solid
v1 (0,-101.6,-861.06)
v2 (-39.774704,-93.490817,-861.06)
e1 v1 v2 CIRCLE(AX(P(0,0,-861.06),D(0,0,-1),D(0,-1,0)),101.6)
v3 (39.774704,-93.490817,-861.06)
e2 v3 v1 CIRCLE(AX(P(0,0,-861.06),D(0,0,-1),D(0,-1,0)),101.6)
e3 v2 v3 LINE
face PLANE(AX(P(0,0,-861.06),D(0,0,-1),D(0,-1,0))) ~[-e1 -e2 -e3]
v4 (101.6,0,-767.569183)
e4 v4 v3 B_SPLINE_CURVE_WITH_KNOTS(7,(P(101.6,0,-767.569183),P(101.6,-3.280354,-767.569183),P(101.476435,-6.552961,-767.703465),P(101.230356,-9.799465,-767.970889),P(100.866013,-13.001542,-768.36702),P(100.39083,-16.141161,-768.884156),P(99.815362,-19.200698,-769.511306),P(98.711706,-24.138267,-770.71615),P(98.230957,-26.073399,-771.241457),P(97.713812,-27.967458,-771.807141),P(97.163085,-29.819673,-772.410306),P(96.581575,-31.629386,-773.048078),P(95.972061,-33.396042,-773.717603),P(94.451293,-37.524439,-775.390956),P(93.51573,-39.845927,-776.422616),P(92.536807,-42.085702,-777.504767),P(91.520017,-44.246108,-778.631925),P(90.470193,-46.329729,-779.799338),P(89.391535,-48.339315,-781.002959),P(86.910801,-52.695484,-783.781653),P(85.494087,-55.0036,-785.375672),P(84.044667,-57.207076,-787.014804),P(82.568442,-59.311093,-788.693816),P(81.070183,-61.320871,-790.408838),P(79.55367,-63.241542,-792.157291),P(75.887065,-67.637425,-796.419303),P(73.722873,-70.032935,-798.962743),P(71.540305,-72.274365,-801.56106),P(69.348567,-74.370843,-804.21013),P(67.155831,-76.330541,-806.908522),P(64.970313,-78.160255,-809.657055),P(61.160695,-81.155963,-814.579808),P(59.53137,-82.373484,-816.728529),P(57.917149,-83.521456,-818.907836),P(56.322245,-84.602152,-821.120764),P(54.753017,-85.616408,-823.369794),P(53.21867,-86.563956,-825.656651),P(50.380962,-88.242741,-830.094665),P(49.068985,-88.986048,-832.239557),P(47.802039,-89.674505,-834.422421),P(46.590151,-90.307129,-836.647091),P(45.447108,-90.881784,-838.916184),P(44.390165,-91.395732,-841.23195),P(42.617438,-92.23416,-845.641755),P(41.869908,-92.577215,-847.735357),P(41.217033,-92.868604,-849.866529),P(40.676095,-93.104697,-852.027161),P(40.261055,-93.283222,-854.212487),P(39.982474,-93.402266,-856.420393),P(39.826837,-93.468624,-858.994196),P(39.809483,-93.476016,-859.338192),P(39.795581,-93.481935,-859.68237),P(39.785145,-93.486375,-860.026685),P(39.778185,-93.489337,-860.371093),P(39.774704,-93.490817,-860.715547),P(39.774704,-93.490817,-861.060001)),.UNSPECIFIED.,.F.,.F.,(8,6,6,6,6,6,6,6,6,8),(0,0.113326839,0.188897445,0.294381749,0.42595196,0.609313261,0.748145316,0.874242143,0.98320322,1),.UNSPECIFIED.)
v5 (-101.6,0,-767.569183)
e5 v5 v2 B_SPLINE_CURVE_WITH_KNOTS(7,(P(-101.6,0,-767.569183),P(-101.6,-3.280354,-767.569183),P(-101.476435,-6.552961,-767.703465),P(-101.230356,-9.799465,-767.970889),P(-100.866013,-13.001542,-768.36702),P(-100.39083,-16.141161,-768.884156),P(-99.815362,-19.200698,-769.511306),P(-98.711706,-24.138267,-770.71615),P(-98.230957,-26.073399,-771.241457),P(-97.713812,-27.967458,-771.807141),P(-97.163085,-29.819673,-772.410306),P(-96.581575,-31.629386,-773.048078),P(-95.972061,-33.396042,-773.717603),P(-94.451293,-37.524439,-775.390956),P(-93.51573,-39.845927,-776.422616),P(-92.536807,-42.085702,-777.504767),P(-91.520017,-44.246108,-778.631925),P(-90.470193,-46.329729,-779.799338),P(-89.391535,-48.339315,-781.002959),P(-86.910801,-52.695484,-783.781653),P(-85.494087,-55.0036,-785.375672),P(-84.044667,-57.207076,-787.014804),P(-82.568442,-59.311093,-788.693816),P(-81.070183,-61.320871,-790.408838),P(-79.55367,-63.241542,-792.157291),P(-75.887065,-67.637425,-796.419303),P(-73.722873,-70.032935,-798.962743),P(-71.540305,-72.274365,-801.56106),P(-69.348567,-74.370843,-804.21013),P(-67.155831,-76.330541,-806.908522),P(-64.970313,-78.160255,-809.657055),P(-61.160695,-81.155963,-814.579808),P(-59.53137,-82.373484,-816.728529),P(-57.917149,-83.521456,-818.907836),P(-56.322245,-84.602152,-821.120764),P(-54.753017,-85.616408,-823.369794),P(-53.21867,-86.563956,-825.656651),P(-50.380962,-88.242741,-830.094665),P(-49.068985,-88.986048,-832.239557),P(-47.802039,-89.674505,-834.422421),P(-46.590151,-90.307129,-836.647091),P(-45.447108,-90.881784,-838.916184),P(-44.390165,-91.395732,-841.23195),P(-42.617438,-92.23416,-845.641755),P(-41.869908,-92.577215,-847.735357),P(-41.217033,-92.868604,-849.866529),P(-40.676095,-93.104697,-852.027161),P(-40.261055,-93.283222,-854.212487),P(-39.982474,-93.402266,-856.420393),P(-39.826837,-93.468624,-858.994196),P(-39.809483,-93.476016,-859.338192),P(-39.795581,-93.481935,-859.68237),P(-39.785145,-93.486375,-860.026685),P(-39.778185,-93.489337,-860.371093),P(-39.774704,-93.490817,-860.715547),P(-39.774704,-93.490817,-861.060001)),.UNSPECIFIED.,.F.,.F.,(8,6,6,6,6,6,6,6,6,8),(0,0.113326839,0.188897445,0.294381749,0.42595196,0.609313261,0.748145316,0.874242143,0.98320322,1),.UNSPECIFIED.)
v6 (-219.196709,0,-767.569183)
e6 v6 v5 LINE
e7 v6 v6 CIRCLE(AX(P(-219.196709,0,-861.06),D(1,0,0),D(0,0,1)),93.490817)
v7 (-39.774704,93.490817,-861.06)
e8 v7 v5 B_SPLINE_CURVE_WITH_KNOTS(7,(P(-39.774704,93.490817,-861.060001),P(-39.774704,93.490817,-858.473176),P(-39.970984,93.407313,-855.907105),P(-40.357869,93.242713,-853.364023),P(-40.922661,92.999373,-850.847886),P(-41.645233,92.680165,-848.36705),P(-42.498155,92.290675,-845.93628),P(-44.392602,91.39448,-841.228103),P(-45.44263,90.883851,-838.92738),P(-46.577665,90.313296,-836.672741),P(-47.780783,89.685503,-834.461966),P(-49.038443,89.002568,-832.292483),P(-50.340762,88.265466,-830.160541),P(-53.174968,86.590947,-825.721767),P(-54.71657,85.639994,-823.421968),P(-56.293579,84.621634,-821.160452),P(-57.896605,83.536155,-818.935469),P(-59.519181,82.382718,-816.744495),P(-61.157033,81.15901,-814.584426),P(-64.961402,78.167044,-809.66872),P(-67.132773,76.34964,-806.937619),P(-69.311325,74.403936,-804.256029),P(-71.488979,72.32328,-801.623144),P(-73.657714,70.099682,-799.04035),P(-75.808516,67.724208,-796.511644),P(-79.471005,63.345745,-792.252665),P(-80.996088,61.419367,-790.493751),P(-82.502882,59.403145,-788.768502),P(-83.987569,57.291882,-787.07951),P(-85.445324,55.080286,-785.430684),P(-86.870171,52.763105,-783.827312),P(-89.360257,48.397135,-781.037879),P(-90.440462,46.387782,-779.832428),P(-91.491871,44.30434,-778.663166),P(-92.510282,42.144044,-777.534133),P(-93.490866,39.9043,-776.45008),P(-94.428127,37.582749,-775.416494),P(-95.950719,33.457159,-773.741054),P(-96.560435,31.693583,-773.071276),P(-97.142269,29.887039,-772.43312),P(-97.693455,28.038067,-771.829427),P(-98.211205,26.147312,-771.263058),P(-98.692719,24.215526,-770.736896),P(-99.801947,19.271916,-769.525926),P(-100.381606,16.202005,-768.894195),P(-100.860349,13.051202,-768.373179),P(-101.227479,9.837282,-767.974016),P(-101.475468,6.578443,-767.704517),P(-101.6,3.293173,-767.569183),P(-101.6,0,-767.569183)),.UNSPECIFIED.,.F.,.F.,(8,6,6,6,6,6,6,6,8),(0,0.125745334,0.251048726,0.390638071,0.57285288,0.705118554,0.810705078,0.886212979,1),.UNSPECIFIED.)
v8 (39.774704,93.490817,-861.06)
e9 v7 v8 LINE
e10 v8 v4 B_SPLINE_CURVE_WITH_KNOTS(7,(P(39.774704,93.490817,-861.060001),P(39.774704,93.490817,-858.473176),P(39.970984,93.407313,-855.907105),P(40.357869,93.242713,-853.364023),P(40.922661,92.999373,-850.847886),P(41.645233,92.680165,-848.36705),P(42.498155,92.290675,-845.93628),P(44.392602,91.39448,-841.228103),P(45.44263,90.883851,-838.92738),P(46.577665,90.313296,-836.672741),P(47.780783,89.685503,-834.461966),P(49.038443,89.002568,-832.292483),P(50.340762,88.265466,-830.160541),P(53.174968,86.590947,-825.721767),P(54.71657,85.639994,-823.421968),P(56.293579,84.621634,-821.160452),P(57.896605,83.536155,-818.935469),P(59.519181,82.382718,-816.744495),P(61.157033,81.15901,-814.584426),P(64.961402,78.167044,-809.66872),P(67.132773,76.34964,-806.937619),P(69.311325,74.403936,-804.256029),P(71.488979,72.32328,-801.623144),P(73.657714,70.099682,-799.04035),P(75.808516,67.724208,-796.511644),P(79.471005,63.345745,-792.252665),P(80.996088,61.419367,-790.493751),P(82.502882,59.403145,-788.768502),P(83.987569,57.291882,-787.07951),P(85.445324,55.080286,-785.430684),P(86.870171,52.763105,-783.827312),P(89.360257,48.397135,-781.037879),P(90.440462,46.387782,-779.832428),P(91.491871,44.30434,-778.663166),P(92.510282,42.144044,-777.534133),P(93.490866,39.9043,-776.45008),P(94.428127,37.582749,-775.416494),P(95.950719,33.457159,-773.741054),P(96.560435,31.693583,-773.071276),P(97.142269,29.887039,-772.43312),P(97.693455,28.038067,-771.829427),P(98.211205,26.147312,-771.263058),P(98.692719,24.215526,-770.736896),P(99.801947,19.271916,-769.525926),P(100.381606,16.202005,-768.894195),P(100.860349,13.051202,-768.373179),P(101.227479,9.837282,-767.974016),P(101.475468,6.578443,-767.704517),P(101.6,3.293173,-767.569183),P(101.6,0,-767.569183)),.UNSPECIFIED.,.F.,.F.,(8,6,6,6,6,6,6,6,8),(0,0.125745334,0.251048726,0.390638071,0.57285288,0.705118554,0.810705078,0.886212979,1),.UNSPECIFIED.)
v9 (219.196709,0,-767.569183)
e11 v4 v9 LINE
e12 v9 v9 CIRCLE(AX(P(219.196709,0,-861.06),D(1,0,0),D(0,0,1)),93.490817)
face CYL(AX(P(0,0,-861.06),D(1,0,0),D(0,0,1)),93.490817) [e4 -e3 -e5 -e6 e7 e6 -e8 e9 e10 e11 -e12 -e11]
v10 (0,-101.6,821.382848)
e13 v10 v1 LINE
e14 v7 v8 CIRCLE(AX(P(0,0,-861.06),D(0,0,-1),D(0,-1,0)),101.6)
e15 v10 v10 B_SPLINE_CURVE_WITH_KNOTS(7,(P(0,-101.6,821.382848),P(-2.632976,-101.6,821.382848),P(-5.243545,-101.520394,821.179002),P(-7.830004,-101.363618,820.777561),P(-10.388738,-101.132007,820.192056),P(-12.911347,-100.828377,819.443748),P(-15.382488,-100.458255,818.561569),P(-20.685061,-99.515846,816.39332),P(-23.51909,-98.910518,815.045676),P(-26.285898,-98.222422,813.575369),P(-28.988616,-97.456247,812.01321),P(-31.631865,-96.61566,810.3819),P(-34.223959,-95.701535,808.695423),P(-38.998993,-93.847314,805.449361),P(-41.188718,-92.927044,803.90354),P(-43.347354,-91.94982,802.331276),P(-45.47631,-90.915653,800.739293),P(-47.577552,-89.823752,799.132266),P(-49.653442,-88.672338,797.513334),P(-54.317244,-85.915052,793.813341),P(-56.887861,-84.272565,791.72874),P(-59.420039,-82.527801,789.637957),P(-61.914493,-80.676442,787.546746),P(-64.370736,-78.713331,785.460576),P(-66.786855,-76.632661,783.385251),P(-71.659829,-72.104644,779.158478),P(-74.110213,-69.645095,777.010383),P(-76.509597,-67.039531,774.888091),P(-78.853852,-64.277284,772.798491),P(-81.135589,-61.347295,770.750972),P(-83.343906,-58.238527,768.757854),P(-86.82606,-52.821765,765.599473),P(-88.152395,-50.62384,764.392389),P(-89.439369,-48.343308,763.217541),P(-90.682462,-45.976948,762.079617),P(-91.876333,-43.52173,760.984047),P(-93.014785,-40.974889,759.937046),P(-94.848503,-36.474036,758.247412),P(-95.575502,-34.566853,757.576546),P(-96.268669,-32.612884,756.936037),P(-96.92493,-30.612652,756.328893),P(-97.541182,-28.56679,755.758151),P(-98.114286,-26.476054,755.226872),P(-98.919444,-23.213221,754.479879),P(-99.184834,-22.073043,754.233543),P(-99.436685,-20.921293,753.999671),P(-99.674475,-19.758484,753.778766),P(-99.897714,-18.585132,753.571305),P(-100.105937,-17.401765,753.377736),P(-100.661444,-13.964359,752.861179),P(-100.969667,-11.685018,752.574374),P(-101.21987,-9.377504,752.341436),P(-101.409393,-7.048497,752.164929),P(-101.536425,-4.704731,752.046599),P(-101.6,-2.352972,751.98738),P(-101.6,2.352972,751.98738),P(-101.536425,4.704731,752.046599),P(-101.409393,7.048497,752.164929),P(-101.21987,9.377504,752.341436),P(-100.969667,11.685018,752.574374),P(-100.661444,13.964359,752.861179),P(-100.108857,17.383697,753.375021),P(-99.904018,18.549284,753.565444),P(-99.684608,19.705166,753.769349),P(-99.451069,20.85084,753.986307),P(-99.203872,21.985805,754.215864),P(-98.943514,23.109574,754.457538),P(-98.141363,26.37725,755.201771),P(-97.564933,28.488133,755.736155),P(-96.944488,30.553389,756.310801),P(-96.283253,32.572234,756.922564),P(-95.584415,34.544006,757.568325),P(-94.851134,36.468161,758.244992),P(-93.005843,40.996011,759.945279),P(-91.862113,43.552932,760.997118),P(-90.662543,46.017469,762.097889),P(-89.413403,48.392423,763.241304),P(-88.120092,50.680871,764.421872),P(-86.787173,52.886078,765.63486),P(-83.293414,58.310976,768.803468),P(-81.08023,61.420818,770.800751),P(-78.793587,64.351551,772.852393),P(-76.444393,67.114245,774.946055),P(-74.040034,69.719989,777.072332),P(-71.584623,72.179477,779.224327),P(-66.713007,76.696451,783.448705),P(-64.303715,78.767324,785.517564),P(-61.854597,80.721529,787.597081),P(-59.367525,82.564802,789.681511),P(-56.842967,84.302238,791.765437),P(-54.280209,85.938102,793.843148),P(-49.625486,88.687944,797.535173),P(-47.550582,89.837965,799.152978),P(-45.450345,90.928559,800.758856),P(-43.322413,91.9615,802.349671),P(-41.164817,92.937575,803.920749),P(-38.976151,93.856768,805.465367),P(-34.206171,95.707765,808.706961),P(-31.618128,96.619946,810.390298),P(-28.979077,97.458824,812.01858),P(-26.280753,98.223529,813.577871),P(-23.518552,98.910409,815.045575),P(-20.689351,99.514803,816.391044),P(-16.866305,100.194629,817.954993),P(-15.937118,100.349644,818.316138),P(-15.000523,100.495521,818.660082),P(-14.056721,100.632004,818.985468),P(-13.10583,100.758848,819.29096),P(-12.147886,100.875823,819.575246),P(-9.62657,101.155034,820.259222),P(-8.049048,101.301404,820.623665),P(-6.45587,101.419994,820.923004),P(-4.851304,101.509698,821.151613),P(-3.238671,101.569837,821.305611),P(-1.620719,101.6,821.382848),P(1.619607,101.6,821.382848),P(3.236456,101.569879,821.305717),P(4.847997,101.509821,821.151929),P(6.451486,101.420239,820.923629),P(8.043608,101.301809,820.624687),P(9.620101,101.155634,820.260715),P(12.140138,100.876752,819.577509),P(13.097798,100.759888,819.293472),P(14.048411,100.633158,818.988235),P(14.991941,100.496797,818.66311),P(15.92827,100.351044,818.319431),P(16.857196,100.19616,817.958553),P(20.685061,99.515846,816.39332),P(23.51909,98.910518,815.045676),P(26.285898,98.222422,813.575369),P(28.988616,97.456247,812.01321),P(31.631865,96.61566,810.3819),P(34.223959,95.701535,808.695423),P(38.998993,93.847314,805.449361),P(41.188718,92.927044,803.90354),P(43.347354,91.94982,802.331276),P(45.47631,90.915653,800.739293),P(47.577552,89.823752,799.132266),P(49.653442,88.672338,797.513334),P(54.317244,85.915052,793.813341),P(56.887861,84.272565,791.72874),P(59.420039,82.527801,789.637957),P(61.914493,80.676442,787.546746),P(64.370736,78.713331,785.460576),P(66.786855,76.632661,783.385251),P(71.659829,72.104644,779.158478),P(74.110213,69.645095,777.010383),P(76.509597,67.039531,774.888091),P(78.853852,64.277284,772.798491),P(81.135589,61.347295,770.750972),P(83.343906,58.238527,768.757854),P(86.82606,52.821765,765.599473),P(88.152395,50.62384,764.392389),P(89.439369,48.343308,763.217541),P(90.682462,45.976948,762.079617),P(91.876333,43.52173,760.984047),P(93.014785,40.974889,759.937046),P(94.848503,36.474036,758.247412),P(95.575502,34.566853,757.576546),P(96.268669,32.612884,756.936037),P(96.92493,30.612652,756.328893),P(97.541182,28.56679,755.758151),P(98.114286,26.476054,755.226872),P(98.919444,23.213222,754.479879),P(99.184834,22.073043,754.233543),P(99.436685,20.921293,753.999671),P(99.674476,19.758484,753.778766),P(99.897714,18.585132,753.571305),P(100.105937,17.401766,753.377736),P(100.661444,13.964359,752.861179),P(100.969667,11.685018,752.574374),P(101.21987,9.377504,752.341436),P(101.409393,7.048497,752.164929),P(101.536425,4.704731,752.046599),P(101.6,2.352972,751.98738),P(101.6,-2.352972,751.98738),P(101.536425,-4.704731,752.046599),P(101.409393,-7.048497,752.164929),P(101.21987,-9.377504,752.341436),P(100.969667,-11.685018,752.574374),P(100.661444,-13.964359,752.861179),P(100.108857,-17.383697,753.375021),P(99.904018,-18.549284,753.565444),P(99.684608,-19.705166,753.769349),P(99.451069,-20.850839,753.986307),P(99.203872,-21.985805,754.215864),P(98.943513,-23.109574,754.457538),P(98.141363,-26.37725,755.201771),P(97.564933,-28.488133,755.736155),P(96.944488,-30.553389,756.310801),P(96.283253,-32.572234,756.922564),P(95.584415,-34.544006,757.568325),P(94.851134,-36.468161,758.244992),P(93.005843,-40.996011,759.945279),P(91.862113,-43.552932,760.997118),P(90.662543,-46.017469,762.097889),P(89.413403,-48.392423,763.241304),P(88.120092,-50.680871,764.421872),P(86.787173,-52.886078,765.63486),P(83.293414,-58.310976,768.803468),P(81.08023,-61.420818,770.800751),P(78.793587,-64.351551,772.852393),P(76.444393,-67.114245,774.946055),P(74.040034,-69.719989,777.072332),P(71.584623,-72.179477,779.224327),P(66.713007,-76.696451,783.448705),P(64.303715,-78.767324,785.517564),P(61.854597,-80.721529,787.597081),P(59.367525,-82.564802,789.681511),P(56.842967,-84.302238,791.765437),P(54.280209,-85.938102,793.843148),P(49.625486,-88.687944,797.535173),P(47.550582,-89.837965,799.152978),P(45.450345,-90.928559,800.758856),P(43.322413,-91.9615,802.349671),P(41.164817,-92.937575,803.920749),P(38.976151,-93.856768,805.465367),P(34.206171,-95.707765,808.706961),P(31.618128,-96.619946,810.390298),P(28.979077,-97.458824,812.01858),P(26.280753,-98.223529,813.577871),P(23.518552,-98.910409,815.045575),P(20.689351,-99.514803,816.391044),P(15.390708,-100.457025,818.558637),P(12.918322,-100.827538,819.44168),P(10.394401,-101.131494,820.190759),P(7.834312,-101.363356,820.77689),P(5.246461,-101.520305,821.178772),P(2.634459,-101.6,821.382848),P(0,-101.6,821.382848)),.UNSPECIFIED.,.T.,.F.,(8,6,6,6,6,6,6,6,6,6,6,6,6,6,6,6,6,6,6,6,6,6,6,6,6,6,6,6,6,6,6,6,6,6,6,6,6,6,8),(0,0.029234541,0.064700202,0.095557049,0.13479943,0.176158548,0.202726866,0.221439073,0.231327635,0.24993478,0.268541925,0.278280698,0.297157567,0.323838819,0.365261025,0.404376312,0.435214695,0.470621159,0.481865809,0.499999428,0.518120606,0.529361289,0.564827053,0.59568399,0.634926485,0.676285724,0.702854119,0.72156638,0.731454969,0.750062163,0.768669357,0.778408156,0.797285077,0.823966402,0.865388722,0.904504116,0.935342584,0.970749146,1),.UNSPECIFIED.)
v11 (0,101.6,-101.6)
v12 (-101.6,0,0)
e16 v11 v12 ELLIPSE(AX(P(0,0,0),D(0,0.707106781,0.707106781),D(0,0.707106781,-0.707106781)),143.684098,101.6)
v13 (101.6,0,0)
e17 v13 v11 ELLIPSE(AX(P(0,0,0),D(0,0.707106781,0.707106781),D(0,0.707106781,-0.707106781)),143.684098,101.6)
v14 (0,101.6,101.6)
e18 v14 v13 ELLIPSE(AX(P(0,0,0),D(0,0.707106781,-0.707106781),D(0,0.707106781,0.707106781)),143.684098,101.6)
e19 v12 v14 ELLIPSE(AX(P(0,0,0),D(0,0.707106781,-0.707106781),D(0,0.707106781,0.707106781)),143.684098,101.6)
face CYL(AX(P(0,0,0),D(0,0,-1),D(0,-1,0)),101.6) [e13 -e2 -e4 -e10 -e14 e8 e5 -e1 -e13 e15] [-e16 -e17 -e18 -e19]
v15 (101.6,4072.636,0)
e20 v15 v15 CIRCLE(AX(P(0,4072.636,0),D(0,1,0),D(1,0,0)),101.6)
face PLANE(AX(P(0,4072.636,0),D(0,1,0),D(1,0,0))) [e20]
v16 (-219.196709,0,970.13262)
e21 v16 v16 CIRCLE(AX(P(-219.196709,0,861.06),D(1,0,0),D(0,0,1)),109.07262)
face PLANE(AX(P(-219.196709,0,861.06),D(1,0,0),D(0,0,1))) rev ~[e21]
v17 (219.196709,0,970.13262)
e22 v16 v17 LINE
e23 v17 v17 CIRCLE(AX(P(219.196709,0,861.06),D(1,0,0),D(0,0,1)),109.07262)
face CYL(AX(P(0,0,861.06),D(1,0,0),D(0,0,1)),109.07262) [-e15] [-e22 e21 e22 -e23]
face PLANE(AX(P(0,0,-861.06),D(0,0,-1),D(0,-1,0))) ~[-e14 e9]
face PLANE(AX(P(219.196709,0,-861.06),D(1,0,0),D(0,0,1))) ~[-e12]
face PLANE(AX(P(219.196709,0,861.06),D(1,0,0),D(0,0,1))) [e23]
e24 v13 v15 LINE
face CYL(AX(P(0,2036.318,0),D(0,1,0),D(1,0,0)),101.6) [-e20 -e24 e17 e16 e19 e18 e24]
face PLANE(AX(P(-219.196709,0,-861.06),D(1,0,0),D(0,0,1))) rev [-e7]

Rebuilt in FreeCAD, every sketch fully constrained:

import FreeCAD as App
import Part
import Sketcher
from FreeCAD import Vector
Q = App.Units.Quantity

doc = App.newDocument("Part")
body = doc.addObject("PartDesign::Body", "Body")

# Sketch on XY plane
sketch1 = body.newObject("Sketcher::SketchObject", "Sketch")
sketch1.AttachmentSupport = (doc.getObject("XY_Plane"), [""])
sketch1.MapMode = "FlatFace"
sketch1.addGeometry(Part.LineSegment(Vector(-101.6, 4072.636, 0), Vector(-101.6, 0, 0)), False)
sketch1.addGeometry(Part.LineSegment(Vector(-101.6, 0, 0), Vector(0, 0, 0)), False)
sketch1.addGeometry(Part.LineSegment(Vector(0, 0, 0), Vector(0, 4072.636, 0)), False)
sketch1.addGeometry(Part.LineSegment(Vector(0, 4072.636, 0), Vector(-101.6, 4072.636, 0)), False)
sketch1.addConstraint(Sketcher.Constraint("Coincident", 0, 2, 1, 1))
sketch1.addConstraint(Sketcher.Constraint("Coincident", 1, 2, 2, 1))
sketch1.addConstraint(Sketcher.Constraint("Coincident", 2, 2, 3, 1))
sketch1.addConstraint(Sketcher.Constraint("Coincident", 3, 2, 0, 1))
sketch1.addConstraint(Sketcher.Constraint("Vertical", 0))
sketch1.addConstraint(Sketcher.Constraint("Horizontal", 1))
sketch1.addConstraint(Sketcher.Constraint("Vertical", 2))
sketch1.addConstraint(Sketcher.Constraint("Horizontal", 3))
sketch1.addConstraint(Sketcher.Constraint("Coincident", 1, 2, -1, 1))
sketch1.addConstraint(Sketcher.Constraint("DistanceX", 1, 1, 1, 2, Q("4 in")))
sketch1.addConstraint(Sketcher.Constraint("DistanceY", 0, 2, 0, 1, Q("160.34 in")))
revolution = body.newObject("PartDesign::Revolution", "Revolution")
revolution.Profile = sketch1
revolution.ReferenceAxis = (sketch1, ["V_Axis"])
revolution.Angle = 360

# Sketch on YZ plane
sketch2 = body.newObject("Sketcher::SketchObject", "Sketch001")
sketch2.AttachmentSupport = (doc.getObject("YZ_Plane"), [""])
sketch2.MapMode = "FlatFace"
sketch2.addGeometry(Part.LineSegment(Vector(101.6, 861.06, 0), Vector(0, 861.06, 0)), False)
sketch2.addGeometry(Part.LineSegment(Vector(0, 861.06, 0), Vector(0, -861.06, 0)), False)
sketch2.addGeometry(Part.LineSegment(Vector(0, -861.06, 0), Vector(101.6, -861.06, 0)), False)
sketch2.addGeometry(Part.LineSegment(Vector(101.6, -861.06, 0), Vector(101.6, 861.06, 0)), False)
sketch2.addConstraint(Sketcher.Constraint("Coincident", 0, 2, 1, 1))
sketch2.addConstraint(Sketcher.Constraint("Coincident", 1, 2, 2, 1))
sketch2.addConstraint(Sketcher.Constraint("Coincident", 2, 2, 3, 1))
sketch2.addConstraint(Sketcher.Constraint("Coincident", 3, 2, 0, 1))
sketch2.addConstraint(Sketcher.Constraint("Horizontal", 0))
sketch2.addConstraint(Sketcher.Constraint("Vertical", 1))
sketch2.addConstraint(Sketcher.Constraint("Horizontal", 2))
sketch2.addConstraint(Sketcher.Constraint("Vertical", 3))
sketch2.addConstraint(Sketcher.Constraint("Symmetric", 0, 2, 1, 2, -1, 1))
sketch2.addConstraint(Sketcher.Constraint("DistanceX", 0, 2, 0, 1, Q("4 in")))
sketch2.addConstraint(Sketcher.Constraint("DistanceY", 1, 2, 1, 1, Q("67.8 in")))
revolution2 = body.newObject("PartDesign::Revolution", "Revolution001")
revolution2.Profile = sketch2
revolution2.ReferenceAxis = (sketch2, ["V_Axis"])
revolution2.Angle = 360

# Sketch on XZ plane
sketch3 = body.newObject("Sketcher::SketchObject", "Sketch002")
sketch3.AttachmentSupport = (doc.getObject("XZ_Plane"), [""])
sketch3.MapMode = "FlatFace"
sketch3.addGeometry(Part.LineSegment(Vector(-219.196709, -954.550817, 0), Vector(-219.196709, -861.06, 0)), False)
sketch3.addGeometry(Part.LineSegment(Vector(-219.196709, -861.06, 0), Vector(219.196709, -861.06, 0)), False)
sketch3.addGeometry(Part.LineSegment(Vector(219.196709, -861.06, 0), Vector(219.196709, -954.550817, 0)), False)
sketch3.addGeometry(Part.LineSegment(Vector(219.196709, -954.550817, 0), Vector(-219.196709, -954.550817, 0)), False)
sketch3.addGeometry(Part.LineSegment(Vector(-219.196709, -861.06, 0), Vector(219.196709, -861.06, 0)), True)  # axis
sketch3.addConstraint(Sketcher.Constraint("Coincident", 0, 2, 1, 1))
sketch3.addConstraint(Sketcher.Constraint("Coincident", 1, 2, 2, 1))
sketch3.addConstraint(Sketcher.Constraint("Coincident", 2, 2, 3, 1))
sketch3.addConstraint(Sketcher.Constraint("Coincident", 3, 2, 0, 1))
sketch3.addConstraint(Sketcher.Constraint("Vertical", 0))
sketch3.addConstraint(Sketcher.Constraint("Horizontal", 1))
sketch3.addConstraint(Sketcher.Constraint("Vertical", 2))
sketch3.addConstraint(Sketcher.Constraint("Horizontal", 3))
sketch3.addConstraint(Sketcher.Constraint("Horizontal", 4))
sketch3.addConstraint(Sketcher.Constraint("Coincident", 4, 1, 0, 2))
sketch3.addConstraint(Sketcher.Constraint("Vertical", 2, 2, 4, 2))
sketch3.addConstraint(Sketcher.Constraint("DistanceY", 0, 2, -1, 1, Q("33.9 in")))
sketch3.addConstraint(Sketcher.Constraint("DistanceX", 1, 1, 1, 2, Q("438.393418 mm")))
sketch3.addConstraint(Sketcher.Constraint("DistanceY", 0, 1, 0, 2, Q("93.490817 mm")))
sketch3.addConstraint(Sketcher.Constraint("DistanceX", 0, 2, -1, 1, Q("219.196709 mm")))
revolution3 = body.newObject("PartDesign::Revolution", "Revolution002")
revolution3.Profile = sketch3
revolution3.ReferenceAxis = (sketch3, ["Axis0"])
revolution3.Angle = 360

# Sketch on XZ plane
sketch4 = body.newObject("Sketcher::SketchObject", "Sketch003")
sketch4.AttachmentSupport = (doc.getObject("XZ_Plane"), [""])
sketch4.MapMode = "FlatFace"
sketch4.addGeometry(Part.LineSegment(Vector(-219.196709, 861.06, 0), Vector(-219.196709, 970.13262, 0)), False)
sketch4.addGeometry(Part.LineSegment(Vector(-219.196709, 970.13262, 0), Vector(219.196709, 970.13262, 0)), False)
sketch4.addGeometry(Part.LineSegment(Vector(219.196709, 970.13262, 0), Vector(219.196709, 861.06, 0)), False)
sketch4.addGeometry(Part.LineSegment(Vector(219.196709, 861.06, 0), Vector(-219.196709, 861.06, 0)), False)
sketch4.addGeometry(Part.LineSegment(Vector(-219.196709, 861.06, 0), Vector(219.196709, 861.06, 0)), True)  # axis
sketch4.addConstraint(Sketcher.Constraint("Coincident", 0, 2, 1, 1))
sketch4.addConstraint(Sketcher.Constraint("Coincident", 1, 2, 2, 1))
sketch4.addConstraint(Sketcher.Constraint("Coincident", 2, 2, 3, 1))
sketch4.addConstraint(Sketcher.Constraint("Coincident", 3, 2, 0, 1))
sketch4.addConstraint(Sketcher.Constraint("Vertical", 0))
sketch4.addConstraint(Sketcher.Constraint("Horizontal", 1))
sketch4.addConstraint(Sketcher.Constraint("Vertical", 2))
sketch4.addConstraint(Sketcher.Constraint("Horizontal", 3))
sketch4.addConstraint(Sketcher.Constraint("Horizontal", 4))
sketch4.addConstraint(Sketcher.Constraint("Coincident", 4, 1, 3, 2))
sketch4.addConstraint(Sketcher.Constraint("Vertical", 1, 2, 4, 2))
sketch4.addConstraint(Sketcher.Constraint("DistanceY", -1, 1, 2, 2, Q("33.9 in")))
sketch4.addConstraint(Sketcher.Constraint("DistanceX", 1, 1, 1, 2, Q("438.393418 mm")))
sketch4.addConstraint(Sketcher.Constraint("DistanceY", 0, 1, 0, 2, Q("109.07262 mm")))
sketch4.addConstraint(Sketcher.Constraint("DistanceX", 0, 2, -1, 1, Q("219.196709 mm")))
revolution4 = body.newObject("PartDesign::Revolution", "Revolution003")
revolution4.Profile = sketch4
revolution4.ReferenceAxis = (sketch4, ["Axis0"])
revolution4.Angle = 360

doc.recompute()
